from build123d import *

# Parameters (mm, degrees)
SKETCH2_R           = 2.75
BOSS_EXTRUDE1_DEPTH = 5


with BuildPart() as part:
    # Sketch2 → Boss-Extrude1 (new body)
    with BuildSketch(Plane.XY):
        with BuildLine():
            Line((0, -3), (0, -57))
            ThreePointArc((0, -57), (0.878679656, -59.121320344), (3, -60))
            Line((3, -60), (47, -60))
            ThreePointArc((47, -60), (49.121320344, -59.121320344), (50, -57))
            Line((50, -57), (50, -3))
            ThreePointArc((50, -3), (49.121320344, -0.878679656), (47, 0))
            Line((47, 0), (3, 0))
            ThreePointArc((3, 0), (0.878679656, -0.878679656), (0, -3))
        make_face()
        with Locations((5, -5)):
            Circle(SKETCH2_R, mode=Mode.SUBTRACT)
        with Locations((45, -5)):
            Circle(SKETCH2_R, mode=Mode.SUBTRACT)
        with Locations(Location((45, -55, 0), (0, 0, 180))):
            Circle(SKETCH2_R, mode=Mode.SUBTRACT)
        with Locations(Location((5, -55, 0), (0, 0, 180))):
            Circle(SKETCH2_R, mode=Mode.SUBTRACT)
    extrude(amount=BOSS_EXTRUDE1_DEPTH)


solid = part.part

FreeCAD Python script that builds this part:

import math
import FreeCAD as App
import Part
import Sketcher
from FreeCAD import Vector

doc = App.newDocument("Part")
body = doc.addObject("PartDesign::Body", "Body")

# Sketch on XY plane
sketch1 = doc.addObject("Sketcher::SketchObject", "Sketch")
body.addObject(sketch1)
sketch1.AttachmentSupport = (doc.XY_Plane, [""])
sketch1.MapMode = "FlatFace"
sketch1.addGeometry(Part.LineSegment(Vector(0, -3, 0), Vector(0, -57, 0)), False)
sketch1.addGeometry(Part.ArcOfCircle(Part.Circle(Vector(3, -57, 0), Vector(0, 0, 1), 3), math.radians(180), math.radians(270)), False)
sketch1.addGeometry(Part.LineSegment(Vector(3, -60, 0), Vector(47, -60, 0)), False)
sketch1.addGeometry(Part.ArcOfCircle(Part.Circle(Vector(47, -57, 0), Vector(0, 0, 1), 3), math.radians(-90), math.radians(0)), False)
sketch1.addGeometry(Part.LineSegment(Vector(50, -57, 0), Vector(50, -3, 0)), False)
sketch1.addGeometry(Part.ArcOfCircle(Part.Circle(Vector(47, -3, 0), Vector(0, 0, 1), 3), math.radians(0), math.radians(90)), False)
sketch1.addGeometry(Part.LineSegment(Vector(47, 0, 0), Vector(3, 0, 0)), False)
sketch1.addGeometry(Part.ArcOfCircle(Part.Circle(Vector(3, -3, 0), Vector(0, 0, 1), 3), math.radians(90), math.radians(180)), False)
sketch1.addGeometry(Part.Circle(Vector(5, -55, 0), Vector(0, 0, 1), 2.8), False)
sketch1.addGeometry(Part.Circle(Vector(45, -55, 0), Vector(0, 0, 1), 2.8), False)
sketch1.addGeometry(Part.Circle(Vector(5, -5, 0), Vector(0, 0, 1), 2.8), False)
sketch1.addGeometry(Part.Circle(Vector(45, -5, 0), Vector(0, 0, 1), 2.8), False)
sketch1.addConstraint(Sketcher.Constraint("Tangent", 0, 2, 1, 1))
sketch1.addConstraint(Sketcher.Constraint("Tangent", 1, 2, 2, 1))
sketch1.addConstraint(Sketcher.Constraint("Tangent", 2, 2, 3, 1))
sketch1.addConstraint(Sketcher.Constraint("Tangent", 3, 2, 4, 1))
sketch1.addConstraint(Sketcher.Constraint("Tangent", 4, 2, 5, 1))
sketch1.addConstraint(Sketcher.Constraint("Tangent", 5, 2, 6, 1))
sketch1.addConstraint(Sketcher.Constraint("Tangent", 6, 2, 7, 1))
sketch1.addConstraint(Sketcher.Constraint("Tangent", 7, 2, 0, 1))
sketch1.addConstraint(Sketcher.Constraint("Vertical", 0))
sketch1.addConstraint(Sketcher.Constraint("Horizontal", 2))
sketch1.addConstraint(Sketcher.Constraint("Vertical", 4))
sketch1.addConstraint(Sketcher.Constraint("Horizontal", 6))
sketch1.addConstraint(Sketcher.Constraint("Equal", 1, 3))
sketch1.addConstraint(Sketcher.Constraint("Equal", 3, 5))
sketch1.addConstraint(Sketcher.Constraint("Equal", 5, 7))
sketch1.addConstraint(Sketcher.Constraint("Equal", 8, 9))
sketch1.addConstraint(Sketcher.Constraint("Equal", 9, 10))
sketch1.addConstraint(Sketcher.Constraint("Equal", 10, 11))
sketch1.addConstraint(Sketcher.Constraint("PointOnObject", 0, 2, -2))
sketch1.addConstraint(Sketcher.Constraint("PointOnObject", 5, 2, -1))
sketch1.addConstraint(Sketcher.Constraint("Horizontal", 8, 3, 9, 3))
sketch1.addConstraint(Sketcher.Constraint("Horizontal", 10, 3, 11, 3))
sketch1.addConstraint(Sketcher.Constraint("Vertical", 8, 3, 10, 3))
sketch1.addConstraint(Sketcher.Constraint("Vertical", 9, 3, 11, 3))
sketch1.addConstraint(Sketcher.Constraint("Radius", 1, 3.0))
sketch1.addConstraint(Sketcher.Constraint("Diameter", 8, 5.5))
sketch1.addConstraint(Sketcher.Constraint("DistanceX", 2, 1, 2, 2, 44.0))
sketch1.addConstraint(Sketcher.Constraint("DistanceY", 0, 2, 0, 1, 54.0))
sketch1.addConstraint(Sketcher.Constraint("DistanceX", -1, 1, 8, 3, 5.0))
sketch1.addConstraint(Sketcher.Constraint("DistanceY", 8, 3, -1, 1, 55.0))
sketch1.addConstraint(Sketcher.Constraint("DistanceX", -1, 1, 9, 3, 45.0))
sketch1.addConstraint(Sketcher.Constraint("DistanceY", 10, 3, -1, 1, 5.0))
pad1 = doc.addObject("PartDesign::Pad", "Pad")
body.addObject(pad1)
pad1.Profile = sketch1
pad1.Length = 5

doc.recompute()
